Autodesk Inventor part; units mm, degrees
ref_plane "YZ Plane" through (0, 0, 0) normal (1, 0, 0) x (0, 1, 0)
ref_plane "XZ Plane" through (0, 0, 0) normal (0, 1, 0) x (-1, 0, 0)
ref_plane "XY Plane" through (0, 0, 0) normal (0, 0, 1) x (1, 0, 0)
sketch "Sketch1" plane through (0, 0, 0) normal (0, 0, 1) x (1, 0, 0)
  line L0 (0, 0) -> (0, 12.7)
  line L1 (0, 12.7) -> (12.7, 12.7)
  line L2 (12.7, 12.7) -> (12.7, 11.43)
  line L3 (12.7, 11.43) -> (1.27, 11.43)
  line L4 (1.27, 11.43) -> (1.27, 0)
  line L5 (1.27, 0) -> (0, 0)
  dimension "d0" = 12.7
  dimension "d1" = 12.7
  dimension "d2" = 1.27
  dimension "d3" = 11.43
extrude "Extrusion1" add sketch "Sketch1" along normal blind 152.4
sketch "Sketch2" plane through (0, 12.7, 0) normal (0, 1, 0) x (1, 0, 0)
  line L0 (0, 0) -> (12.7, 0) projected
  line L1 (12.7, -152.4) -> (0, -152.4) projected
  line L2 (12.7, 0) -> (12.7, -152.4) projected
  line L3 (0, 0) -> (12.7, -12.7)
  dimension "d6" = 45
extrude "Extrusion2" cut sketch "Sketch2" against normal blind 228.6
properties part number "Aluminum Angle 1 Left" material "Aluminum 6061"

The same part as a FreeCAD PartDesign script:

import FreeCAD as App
import Part
import Sketcher
Q = App.Units.Quantity

doc = App.newDocument("Part")
body = doc.addObject("PartDesign::Body", "Body")

# Sketch on XY plane
sketch1 = doc.addObject("Sketcher::SketchObject", "Sketch")
body.addObject(sketch1)
sketch1.AttachmentSupport = (doc.XY_Plane, [""])
sketch1.MapMode = "FlatFace"
sketch1.addGeometry(Part.LineSegment(App.Vector(0, 12.7, 0), App.Vector(0, 0, 0)), False)
sketch1.addGeometry(Part.LineSegment(App.Vector(0, 0, 0), App.Vector(1.3, 0, 0)), False)
sketch1.addGeometry(Part.LineSegment(App.Vector(1.3, 0, 0), App.Vector(1.3, 11.4, 0)), False)
sketch1.addGeometry(Part.LineSegment(App.Vector(1.3, 11.4, 0), App.Vector(12.7, 11.4, 0)), False)
sketch1.addGeometry(Part.LineSegment(App.Vector(12.7, 11.4, 0), App.Vector(12.7, 12.7, 0)), False)
sketch1.addGeometry(Part.LineSegment(App.Vector(12.7, 12.7, 0), App.Vector(0, 12.7, 0)), False)
sketch1.addConstraint(Sketcher.Constraint("Coincident", 0, 2, 1, 1))
sketch1.addConstraint(Sketcher.Constraint("Coincident", 1, 2, 2, 1))
sketch1.addConstraint(Sketcher.Constraint("Coincident", 2, 2, 3, 1))
sketch1.addConstraint(Sketcher.Constraint("Coincident", 3, 2, 4, 1))
sketch1.addConstraint(Sketcher.Constraint("Coincident", 4, 2, 5, 1))
sketch1.addConstraint(Sketcher.Constraint("Coincident", 5, 2, 0, 1))
sketch1.addConstraint(Sketcher.Constraint("Vertical", 0))
sketch1.addConstraint(Sketcher.Constraint("Horizontal", 1))
sketch1.addConstraint(Sketcher.Constraint("Vertical", 2))
sketch1.addConstraint(Sketcher.Constraint("Horizontal", 3))
sketch1.addConstraint(Sketcher.Constraint("Vertical", 4))
sketch1.addConstraint(Sketcher.Constraint("Horizontal", 5))
sketch1.addConstraint(Sketcher.Constraint("Coincident", 0, 2, -1, 1))
sketch1.addConstraint(Sketcher.Constraint("Equal", 5, 0))
sketch1.addConstraint(Sketcher.Constraint("Equal", 3, 2))
sketch1.addConstraint(Sketcher.Constraint("DistanceX", 5, 2, 5, 1, Q("0.5 in")))
sketch1.addConstraint(Sketcher.Constraint("DistanceX", 1, 1, 1, 2, Q("0.05 in")))
pad1 = doc.addObject("PartDesign::Pad", "Pad")
body.addObject(pad1)
pad1.Profile = sketch1
pad1.Length = Q("6 in")

# Sketch on XZ plane
sketch2 = doc.addObject("Sketcher::SketchObject", "Sketch001")
body.addObject(sketch2)
sketch2.AttachmentSupport = (doc.XZ_Plane, [""])
sketch2.MapMode = "FlatFace"
sketch2.AttachmentOffset = App.Placement(App.Vector(0, 0, -0.5 * 25.4), App.Rotation())
sketch2.addGeometry(Part.LineSegment(App.Vector(13, 0, 0), App.Vector(0, 0, 0)), False)
sketch2.addGeometry(Part.LineSegment(App.Vector(0, 0, 0), App.Vector(13, 13, 0)), False)
sketch2.addGeometry(Part.LineSegment(App.Vector(13, 13, 0), App.Vector(13, 0, 0)), False)
sketch2.addConstraint(Sketcher.Constraint("Coincident", 0, 2, 1, 1))
sketch2.addConstraint(Sketcher.Constraint("Coincident", 1, 2, 2, 1))
sketch2.addConstraint(Sketcher.Constraint("Coincident", 2, 2, 0, 1))
sketch2.addConstraint(Sketcher.Constraint("Horizontal", 0))
sketch2.addConstraint(Sketcher.Constraint("Vertical", 2))
sketch2.addConstraint(Sketcher.Constraint("Coincident", 0, 2, -1, 1))
sketch2.addConstraint(Sketcher.Constraint("Equal", 0, 2))
sketch2.addConstraint(Sketcher.Constraint("DistanceX", 0, 2, 0, 1, Q("0.5 in")))
pocket1 = doc.addObject("PartDesign::Pocket", "Pocket")
body.addObject(pocket1)
pocket1.Profile = sketch2
pocket1.Length = Q("9 in")
pocket1.Reversed = True

doc.recompute()
